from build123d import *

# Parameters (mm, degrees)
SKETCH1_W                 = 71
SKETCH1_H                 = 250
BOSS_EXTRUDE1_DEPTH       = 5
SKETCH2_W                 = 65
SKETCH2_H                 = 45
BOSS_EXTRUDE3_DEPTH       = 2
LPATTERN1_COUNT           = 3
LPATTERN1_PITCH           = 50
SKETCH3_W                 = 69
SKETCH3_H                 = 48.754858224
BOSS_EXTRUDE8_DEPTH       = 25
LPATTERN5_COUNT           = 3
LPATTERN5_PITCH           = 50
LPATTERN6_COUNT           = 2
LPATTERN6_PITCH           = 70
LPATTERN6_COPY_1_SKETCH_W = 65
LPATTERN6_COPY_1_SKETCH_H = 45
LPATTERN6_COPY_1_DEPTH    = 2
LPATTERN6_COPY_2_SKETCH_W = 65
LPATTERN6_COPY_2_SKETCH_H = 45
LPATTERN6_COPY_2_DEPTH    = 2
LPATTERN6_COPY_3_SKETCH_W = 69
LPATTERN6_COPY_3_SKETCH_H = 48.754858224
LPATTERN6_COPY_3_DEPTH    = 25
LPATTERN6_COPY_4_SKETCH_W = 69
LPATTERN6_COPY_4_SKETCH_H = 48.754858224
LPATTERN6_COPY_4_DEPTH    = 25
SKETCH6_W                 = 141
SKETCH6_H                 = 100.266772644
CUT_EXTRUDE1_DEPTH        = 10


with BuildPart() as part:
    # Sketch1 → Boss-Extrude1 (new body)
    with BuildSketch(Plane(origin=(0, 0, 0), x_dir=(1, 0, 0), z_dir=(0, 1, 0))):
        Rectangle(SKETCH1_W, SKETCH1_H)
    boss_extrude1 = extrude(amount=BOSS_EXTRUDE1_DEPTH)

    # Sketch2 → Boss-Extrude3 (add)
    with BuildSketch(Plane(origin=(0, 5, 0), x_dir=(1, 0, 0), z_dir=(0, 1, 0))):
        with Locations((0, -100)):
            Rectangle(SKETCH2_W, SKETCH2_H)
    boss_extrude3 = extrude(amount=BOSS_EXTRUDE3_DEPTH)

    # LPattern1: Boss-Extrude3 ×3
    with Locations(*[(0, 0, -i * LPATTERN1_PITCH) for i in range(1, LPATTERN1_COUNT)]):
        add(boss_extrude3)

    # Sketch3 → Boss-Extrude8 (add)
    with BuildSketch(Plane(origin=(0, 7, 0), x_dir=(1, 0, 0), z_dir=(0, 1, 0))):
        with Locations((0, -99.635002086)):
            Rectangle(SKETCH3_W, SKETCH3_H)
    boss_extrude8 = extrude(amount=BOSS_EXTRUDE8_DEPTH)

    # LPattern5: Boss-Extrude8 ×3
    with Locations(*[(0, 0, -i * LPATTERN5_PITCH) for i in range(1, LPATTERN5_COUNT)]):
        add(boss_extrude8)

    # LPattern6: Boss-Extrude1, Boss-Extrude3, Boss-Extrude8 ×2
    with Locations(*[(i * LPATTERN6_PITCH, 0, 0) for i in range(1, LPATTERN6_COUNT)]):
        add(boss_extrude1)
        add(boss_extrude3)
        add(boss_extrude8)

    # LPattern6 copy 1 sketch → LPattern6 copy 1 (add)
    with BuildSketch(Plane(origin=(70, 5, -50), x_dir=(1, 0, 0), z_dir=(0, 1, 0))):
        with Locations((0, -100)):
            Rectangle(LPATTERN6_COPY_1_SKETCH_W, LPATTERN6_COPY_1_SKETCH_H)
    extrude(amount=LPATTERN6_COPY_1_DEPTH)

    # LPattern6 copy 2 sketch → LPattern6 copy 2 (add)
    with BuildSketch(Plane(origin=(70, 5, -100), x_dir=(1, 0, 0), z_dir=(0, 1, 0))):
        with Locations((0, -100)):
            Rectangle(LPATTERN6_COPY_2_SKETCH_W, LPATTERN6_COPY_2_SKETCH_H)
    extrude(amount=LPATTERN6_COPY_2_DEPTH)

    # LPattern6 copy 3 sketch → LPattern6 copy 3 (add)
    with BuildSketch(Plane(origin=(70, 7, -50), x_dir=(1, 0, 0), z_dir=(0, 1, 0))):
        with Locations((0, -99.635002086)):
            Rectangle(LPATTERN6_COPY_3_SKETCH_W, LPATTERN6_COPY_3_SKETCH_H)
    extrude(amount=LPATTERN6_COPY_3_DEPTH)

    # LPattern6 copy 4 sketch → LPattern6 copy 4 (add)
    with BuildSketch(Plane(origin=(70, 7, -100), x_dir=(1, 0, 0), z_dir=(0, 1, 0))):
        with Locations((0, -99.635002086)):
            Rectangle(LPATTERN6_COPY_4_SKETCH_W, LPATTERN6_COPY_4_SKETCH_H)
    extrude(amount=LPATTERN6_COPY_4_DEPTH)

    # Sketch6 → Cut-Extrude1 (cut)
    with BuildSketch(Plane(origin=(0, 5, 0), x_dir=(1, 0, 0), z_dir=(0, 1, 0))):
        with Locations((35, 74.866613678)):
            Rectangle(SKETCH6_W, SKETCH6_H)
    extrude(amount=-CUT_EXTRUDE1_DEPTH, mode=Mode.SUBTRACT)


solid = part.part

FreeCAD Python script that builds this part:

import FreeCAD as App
import Part
import Sketcher
from FreeCAD import Vector
Q = App.Units.Quantity

doc = App.newDocument("Part")
body = doc.addObject("PartDesign::Body", "Body")

sketch1 = doc.addObject("Sketcher::SketchObject", "Sketch")
body.addObject(sketch1)
sketch1.AttachmentSupport = (doc.XZ_Plane, [""])
sketch1.MapMode = "FlatFace"
sketch1.addGeometry(Part.LineSegment(Vector(-35.5, -125, 0), Vector(-35.5, 125, 0)), False)
sketch1.addGeometry(Part.LineSegment(Vector(-35.5, 125, 0), Vector(35.5, 125, 0)), False)
sketch1.addGeometry(Part.LineSegment(Vector(35.5, 125, 0), Vector(35.5, -125, 0)), False)
sketch1.addGeometry(Part.LineSegment(Vector(35.5, -125, 0), Vector(-35.5, -125, 0)), False)
sketch1.addConstraint(Sketcher.Constraint("Coincident", 0, 2, 1, 1))
sketch1.addConstraint(Sketcher.Constraint("Coincident", 1, 2, 2, 1))
sketch1.addConstraint(Sketcher.Constraint("Coincident", 2, 2, 3, 1))
sketch1.addConstraint(Sketcher.Constraint("Coincident", 3, 2, 0, 1))
sketch1.addConstraint(Sketcher.Constraint("Vertical", 0))
sketch1.addConstraint(Sketcher.Constraint("Horizontal", 1))
sketch1.addConstraint(Sketcher.Constraint("Vertical", 2))
sketch1.addConstraint(Sketcher.Constraint("Horizontal", 3))
sketch1.addConstraint(Sketcher.Constraint("Symmetric", 0, 2, 2, 2, -1, 1))
sketch1.addConstraint(Sketcher.Constraint("DistanceX", 1, 1, 1, 2, Q("71 mm")))
sketch1.addConstraint(Sketcher.Constraint("DistanceY", 0, 1, 0, 2, Q("250 mm")))
pad1 = doc.addObject("PartDesign::Pad", "Pad")
body.addObject(pad1)
pad1.Profile = sketch1
pad1.Length = 5
pad1.Reversed = True

sketch2 = doc.addObject("Sketcher::SketchObject", "Sketch001")
body.addObject(sketch2)
sketch2.AttachmentSupport = (doc.XZ_Plane, [""])
sketch2.MapMode = "FlatFace"
sketch2.AttachmentOffset = App.Placement(Vector(0, 0, -5), App.Rotation())
sketch2.addGeometry(Part.LineSegment(Vector(-32.5, 77.5, 0), Vector(-32.5, 122.5, 0)), False)
sketch2.addGeometry(Part.LineSegment(Vector(-32.5, 122.5, 0), Vector(32.5, 122.5, 0)), False)
sketch2.addGeometry(Part.LineSegment(Vector(32.5, 122.5, 0), Vector(32.5, 77.5, 0)), False)
sketch2.addGeometry(Part.LineSegment(Vector(32.5, 77.5, 0), Vector(-32.5, 77.5, 0)), False)
sketch2.addConstraint(Sketcher.Constraint("Coincident", 0, 2, 1, 1))
sketch2.addConstraint(Sketcher.Constraint("Coincident", 1, 2, 2, 1))
sketch2.addConstraint(Sketcher.Constraint("Coincident", 2, 2, 3, 1))
sketch2.addConstraint(Sketcher.Constraint("Coincident", 3, 2, 0, 1))
sketch2.addConstraint(Sketcher.Constraint("Vertical", 0))
sketch2.addConstraint(Sketcher.Constraint("Horizontal", 1))
sketch2.addConstraint(Sketcher.Constraint("Vertical", 2))
sketch2.addConstraint(Sketcher.Constraint("Horizontal", 3))
sketch2.addConstraint(Sketcher.Constraint("DistanceX", 1, 1, 1, 2, Q("65 mm")))
sketch2.addConstraint(Sketcher.Constraint("DistanceY", 0, 1, 0, 2, Q("45 mm")))
sketch2.addConstraint(Sketcher.Constraint("DistanceX", 0, 2, -1, 1, Q("32.5 mm")))
sketch2.addConstraint(Sketcher.Constraint("DistanceY", -1, 1, 0, 2, Q("122.5 mm")))
pad2 = doc.addObject("PartDesign::Pad", "Pad001")
body.addObject(pad2)
pad2.Profile = sketch2
pad2.Length = 2
pad2.Reversed = True
doc.recompute()

linearpattern = doc.addObject("PartDesign::LinearPattern", "LinearPattern")
body.addObject(linearpattern)
linearpattern.Originals = [pad2]
linearpattern.Direction = (doc.Z_Axis, [""])
linearpattern.Mode = "offset"
linearpattern.Offset = 50
linearpattern.Occurrences = 3
linearpattern.Reversed = True
body.Tip = linearpattern

sketch3 = doc.addObject("Sketcher::SketchObject", "Sketch002")
body.addObject(sketch3)
sketch3.AttachmentSupport = (doc.XZ_Plane, [""])
sketch3.MapMode = "FlatFace"
sketch3.AttachmentOffset = App.Placement(Vector(0, 0, -7), App.Rotation())
sketch3.addGeometry(Part.LineSegment(Vector(-34.5, 75.257573, 0), Vector(-34.5, 124.012431, 0)), False)
sketch3.addGeometry(Part.LineSegment(Vector(-34.5, 124.012431, 0), Vector(34.5, 124.012431, 0)), False)
sketch3.addGeometry(Part.LineSegment(Vector(34.5, 124.012431, 0), Vector(34.5, 75.257573, 0)), False)
sketch3.addGeometry(Part.LineSegment(Vector(34.5, 75.257573, 0), Vector(-34.5, 75.257573, 0)), False)
sketch3.addConstraint(Sketcher.Constraint("Coincident", 0, 2, 1, 1))
sketch3.addConstraint(Sketcher.Constraint("Coincident", 1, 2, 2, 1))
sketch3.addConstraint(Sketcher.Constraint("Coincident", 2, 2, 3, 1))
sketch3.addConstraint(Sketcher.Constraint("Coincident", 3, 2, 0, 1))
sketch3.addConstraint(Sketcher.Constraint("Vertical", 0))
sketch3.addConstraint(Sketcher.Constraint("Horizontal", 1))
sketch3.addConstraint(Sketcher.Constraint("Vertical", 2))
sketch3.addConstraint(Sketcher.Constraint("Horizontal", 3))
sketch3.addConstraint(Sketcher.Constraint("DistanceX", 1, 1, 1, 2, Q("69 mm")))
sketch3.addConstraint(Sketcher.Constraint("DistanceX", 0, 2, -1, 1, Q("34.5 mm")))
sketch3.addConstraint(Sketcher.Constraint("DistanceY", 0, 1, 0, 2, Q("48.754858 mm")))
sketch3.addConstraint(Sketcher.Constraint("DistanceY", -1, 1, 0, 2, Q("124.012431 mm")))
pad3 = doc.addObject("PartDesign::Pad", "Pad002")
body.addObject(pad3)
pad3.Profile = sketch3
pad3.Length = 25
pad3.Reversed = True
doc.recompute()

linearpattern2 = doc.addObject("PartDesign::LinearPattern", "LinearPattern001")
body.addObject(linearpattern2)
linearpattern2.Originals = [pad3]
linearpattern2.Direction = (doc.Z_Axis, [""])
linearpattern2.Mode = "offset"
linearpattern2.Offset = 50
linearpattern2.Occurrences = 3
linearpattern2.Reversed = True
body.Tip = linearpattern2
doc.recompute()

linearpattern3 = doc.addObject("PartDesign::LinearPattern", "LinearPattern002")
body.addObject(linearpattern3)
linearpattern3.Originals = [pad1, pad2, pad3]
linearpattern3.Direction = (doc.X_Axis, [""])
linearpattern3.Mode = "offset"
linearpattern3.Offset = 70
linearpattern3.Occurrences = 2
body.Tip = linearpattern3

sketch4 = doc.addObject("Sketcher::SketchObject", "Sketch003")
body.addObject(sketch4)
sketch4.AttachmentSupport = (doc.XZ_Plane, [""])
sketch4.MapMode = "FlatFace"
sketch4.AttachmentOffset = App.Placement(Vector(0, 0, -5), App.Rotation())
sketch4.addGeometry(Part.LineSegment(Vector(37.5, 27.5, 0), Vector(37.5, 72.5, 0)), False)
sketch4.addGeometry(Part.LineSegment(Vector(37.5, 72.5, 0), Vector(102.5, 72.5, 0)), False)
sketch4.addGeometry(Part.LineSegment(Vector(102.5, 72.5, 0), Vector(102.5, 27.5, 0)), False)
sketch4.addGeometry(Part.LineSegment(Vector(102.5, 27.5, 0), Vector(37.5, 27.5, 0)), False)
sketch4.addConstraint(Sketcher.Constraint("Coincident", 0, 2, 1, 1))
sketch4.addConstraint(Sketcher.Constraint("Coincident", 1, 2, 2, 1))
sketch4.addConstraint(Sketcher.Constraint("Coincident", 2, 2, 3, 1))
sketch4.addConstraint(Sketcher.Constraint("Coincident", 3, 2, 0, 1))
sketch4.addConstraint(Sketcher.Constraint("Vertical", 0))
sketch4.addConstraint(Sketcher.Constraint("Horizontal", 1))
sketch4.addConstraint(Sketcher.Constraint("Vertical", 2))
sketch4.addConstraint(Sketcher.Constraint("Horizontal", 3))
sketch4.addConstraint(Sketcher.Constraint("DistanceX", 1, 1, 1, 2, Q("65 mm")))
sketch4.addConstraint(Sketcher.Constraint("DistanceY", 0, 1, 0, 2, Q("45 mm")))
sketch4.addConstraint(Sketcher.Constraint("DistanceX", -1, 1, 0, 2, Q("37.5 mm")))
sketch4.addConstraint(Sketcher.Constraint("DistanceY", -1, 1, 0, 2, Q("72.5 mm")))
pad4 = doc.addObject("PartDesign::Pad", "Pad003")
body.addObject(pad4)
pad4.Profile = sketch4
pad4.Length = 2
pad4.Reversed = True

sketch5 = doc.addObject("Sketcher::SketchObject", "Sketch004")
body.addObject(sketch5)
sketch5.AttachmentSupport = (doc.XZ_Plane, [""])
sketch5.MapMode = "FlatFace"
sketch5.AttachmentOffset = App.Placement(Vector(0, 0, -5), App.Rotation())
sketch5.addGeometry(Part.LineSegment(Vector(37.5, -22.5, 0), Vector(37.5, 22.5, 0)), False)
sketch5.addGeometry(Part.LineSegment(Vector(37.5, 22.5, 0), Vector(102.5, 22.5, 0)), False)
sketch5.addGeometry(Part.LineSegment(Vector(102.5, 22.5, 0), Vector(102.5, -22.5, 0)), False)
sketch5.addGeometry(Part.LineSegment(Vector(102.5, -22.5, 0), Vector(37.5, -22.5, 0)), False)
sketch5.addConstraint(Sketcher.Constraint("Coincident", 0, 2, 1, 1))
sketch5.addConstraint(Sketcher.Constraint("Coincident", 1, 2, 2, 1))
sketch5.addConstraint(Sketcher.Constraint("Coincident", 2, 2, 3, 1))
sketch5.addConstraint(Sketcher.Constraint("Coincident", 3, 2, 0, 1))
sketch5.addConstraint(Sketcher.Constraint("Vertical", 0))
sketch5.addConstraint(Sketcher.Constraint("Horizontal", 1))
sketch5.addConstraint(Sketcher.Constraint("Vertical", 2))
sketch5.addConstraint(Sketcher.Constraint("Horizontal", 3))
sketch5.addConstraint(Sketcher.Constraint("DistanceX", 1, 1, 1, 2, Q("65 mm")))
sketch5.addConstraint(Sketcher.Constraint("DistanceY", 0, 1, 0, 2, Q("45 mm")))
sketch5.addConstraint(Sketcher.Constraint("DistanceX", -1, 1, 0, 2, Q("37.5 mm")))
sketch5.addConstraint(Sketcher.Constraint("DistanceY", -1, 1, 0, 2, Q("22.5 mm")))
pad5 = doc.addObject("PartDesign::Pad", "Pad004")
body.addObject(pad5)
pad5.Profile = sketch5
pad5.Length = 2
pad5.Reversed = True

sketch6 = doc.addObject("Sketcher::SketchObject", "Sketch005")
body.addObject(sketch6)
sketch6.AttachmentSupport = (doc.XZ_Plane, [""])
sketch6.MapMode = "FlatFace"
sketch6.AttachmentOffset = App.Placement(Vector(0, 0, -7), App.Rotation())
sketch6.addGeometry(Part.LineSegment(Vector(35.5, 25.257573, 0), Vector(35.5, 74.012431, 0)), False)
sketch6.addGeometry(Part.LineSegment(Vector(35.5, 74.012431, 0), Vector(104.5, 74.012431, 0)), False)
sketch6.addGeometry(Part.LineSegment(Vector(104.5, 74.012431, 0), Vector(104.5, 25.257573, 0)), False)
sketch6.addGeometry(Part.LineSegment(Vector(104.5, 25.257573, 0), Vector(35.5, 25.257573, 0)), False)
sketch6.addConstraint(Sketcher.Constraint("Coincident", 0, 2, 1, 1))
sketch6.addConstraint(Sketcher.Constraint("Coincident", 1, 2, 2, 1))
sketch6.addConstraint(Sketcher.Constraint("Coincident", 2, 2, 3, 1))
sketch6.addConstraint(Sketcher.Constraint("Coincident", 3, 2, 0, 1))
sketch6.addConstraint(Sketcher.Constraint("Vertical", 0))
sketch6.addConstraint(Sketcher.Constraint("Horizontal", 1))
sketch6.addConstraint(Sketcher.Constraint("Vertical", 2))
sketch6.addConstraint(Sketcher.Constraint("Horizontal", 3))
sketch6.addConstraint(Sketcher.Constraint("DistanceX", 1, 1, 1, 2, Q("69 mm")))
sketch6.addConstraint(Sketcher.Constraint("DistanceX", -1, 1, 0, 2, Q("35.5 mm")))
sketch6.addConstraint(Sketcher.Constraint("DistanceY", 0, 1, 0, 2, Q("48.754858 mm")))
sketch6.addConstraint(Sketcher.Constraint("DistanceY", -1, 1, 0, 2, Q("74.012431 mm")))
pad6 = doc.addObject("PartDesign::Pad", "Pad005")
body.addObject(pad6)
pad6.Profile = sketch6
pad6.Length = 25
pad6.Reversed = True

sketch7 = doc.addObject("Sketcher::SketchObject", "Sketch006")
body.addObject(sketch7)
sketch7.AttachmentSupport = (doc.XZ_Plane, [""])
sketch7.MapMode = "FlatFace"
sketch7.AttachmentOffset = App.Placement(Vector(0, 0, -7), App.Rotation())
sketch7.addGeometry(Part.LineSegment(Vector(35.5, -24.742427, 0), Vector(35.5, 24.012431, 0)), False)
sketch7.addGeometry(Part.LineSegment(Vector(35.5, 24.012431, 0), Vector(104.5, 24.012431, 0)), False)
sketch7.addGeometry(Part.LineSegment(Vector(104.5, 24.012431, 0), Vector(104.5, -24.742427, 0)), False)
sketch7.addGeometry(Part.LineSegment(Vector(104.5, -24.742427, 0), Vector(35.5, -24.742427, 0)), False)
sketch7.addConstraint(Sketcher.Constraint("Coincident", 0, 2, 1, 1))
sketch7.addConstraint(Sketcher.Constraint("Coincident", 1, 2, 2, 1))
sketch7.addConstraint(Sketcher.Constraint("Coincident", 2, 2, 3, 1))
sketch7.addConstraint(Sketcher.Constraint("Coincident", 3, 2, 0, 1))
sketch7.addConstraint(Sketcher.Constraint("Vertical", 0))
sketch7.addConstraint(Sketcher.Constraint("Horizontal", 1))
sketch7.addConstraint(Sketcher.Constraint("Vertical", 2))
sketch7.addConstraint(Sketcher.Constraint("Horizontal", 3))
sketch7.addConstraint(Sketcher.Constraint("DistanceX", 1, 1, 1, 2, Q("69 mm")))
sketch7.addConstraint(Sketcher.Constraint("DistanceX", -1, 1, 0, 2, Q("35.5 mm")))
sketch7.addConstraint(Sketcher.Constraint("DistanceY", 0, 1, 0, 2, Q("48.754858 mm")))
sketch7.addConstraint(Sketcher.Constraint("DistanceY", -1, 1, 0, 2, Q("24.012431 mm")))
pad7 = doc.addObject("PartDesign::Pad", "Pad006")
body.addObject(pad7)
pad7.Profile = sketch7
pad7.Length = 25
pad7.Reversed = True

sketch8 = doc.addObject("Sketcher::SketchObject", "Sketch007")
body.addObject(sketch8)
sketch8.AttachmentSupport = (doc.XZ_Plane, [""])
sketch8.MapMode = "FlatFace"
sketch8.AttachmentOffset = App.Placement(Vector(0, 0, -5), App.Rotation())
sketch8.addGeometry(Part.LineSegment(Vector(-35.5, -125, 0), Vector(-35.5, -24.733227, 0)), False)
sketch8.addGeometry(Part.LineSegment(Vector(-35.5, -24.733227, 0), Vector(105.5, -24.733227, 0)), False)
sketch8.addGeometry(Part.LineSegment(Vector(105.5, -24.733227, 0), Vector(105.5, -125, 0)), False)
sketch8.addGeometry(Part.LineSegment(Vector(105.5, -125, 0), Vector(-35.5, -125, 0)), False)
sketch8.addConstraint(Sketcher.Constraint("Coincident", 0, 2, 1, 1))
sketch8.addConstraint(Sketcher.Constraint("Coincident", 1, 2, 2, 1))
sketch8.addConstraint(Sketcher.Constraint("Coincident", 2, 2, 3, 1))
sketch8.addConstraint(Sketcher.Constraint("Coincident", 3, 2, 0, 1))
sketch8.addConstraint(Sketcher.Constraint("Vertical", 0))
sketch8.addConstraint(Sketcher.Constraint("Horizontal", 1))
sketch8.addConstraint(Sketcher.Constraint("Vertical", 2))
sketch8.addConstraint(Sketcher.Constraint("Horizontal", 3))
sketch8.addConstraint(Sketcher.Constraint("DistanceX", 1, 1, 1, 2, Q("141 mm")))
sketch8.addConstraint(Sketcher.Constraint("DistanceY", 2, 2, -1, 1, Q("125 mm")))
sketch8.addConstraint(Sketcher.Constraint("DistanceX", 0, 2, -1, 1, Q("35.5 mm")))
sketch8.addConstraint(Sketcher.Constraint("DistanceY", 0, 1, 0, 2, Q("100.266773 mm")))
pocket1 = doc.addObject("PartDesign::Pocket", "Pocket")
body.addObject(pocket1)
pocket1.Profile = sketch8
pocket1.Length = 10
pocket1.Reversed = True

doc.recompute()
